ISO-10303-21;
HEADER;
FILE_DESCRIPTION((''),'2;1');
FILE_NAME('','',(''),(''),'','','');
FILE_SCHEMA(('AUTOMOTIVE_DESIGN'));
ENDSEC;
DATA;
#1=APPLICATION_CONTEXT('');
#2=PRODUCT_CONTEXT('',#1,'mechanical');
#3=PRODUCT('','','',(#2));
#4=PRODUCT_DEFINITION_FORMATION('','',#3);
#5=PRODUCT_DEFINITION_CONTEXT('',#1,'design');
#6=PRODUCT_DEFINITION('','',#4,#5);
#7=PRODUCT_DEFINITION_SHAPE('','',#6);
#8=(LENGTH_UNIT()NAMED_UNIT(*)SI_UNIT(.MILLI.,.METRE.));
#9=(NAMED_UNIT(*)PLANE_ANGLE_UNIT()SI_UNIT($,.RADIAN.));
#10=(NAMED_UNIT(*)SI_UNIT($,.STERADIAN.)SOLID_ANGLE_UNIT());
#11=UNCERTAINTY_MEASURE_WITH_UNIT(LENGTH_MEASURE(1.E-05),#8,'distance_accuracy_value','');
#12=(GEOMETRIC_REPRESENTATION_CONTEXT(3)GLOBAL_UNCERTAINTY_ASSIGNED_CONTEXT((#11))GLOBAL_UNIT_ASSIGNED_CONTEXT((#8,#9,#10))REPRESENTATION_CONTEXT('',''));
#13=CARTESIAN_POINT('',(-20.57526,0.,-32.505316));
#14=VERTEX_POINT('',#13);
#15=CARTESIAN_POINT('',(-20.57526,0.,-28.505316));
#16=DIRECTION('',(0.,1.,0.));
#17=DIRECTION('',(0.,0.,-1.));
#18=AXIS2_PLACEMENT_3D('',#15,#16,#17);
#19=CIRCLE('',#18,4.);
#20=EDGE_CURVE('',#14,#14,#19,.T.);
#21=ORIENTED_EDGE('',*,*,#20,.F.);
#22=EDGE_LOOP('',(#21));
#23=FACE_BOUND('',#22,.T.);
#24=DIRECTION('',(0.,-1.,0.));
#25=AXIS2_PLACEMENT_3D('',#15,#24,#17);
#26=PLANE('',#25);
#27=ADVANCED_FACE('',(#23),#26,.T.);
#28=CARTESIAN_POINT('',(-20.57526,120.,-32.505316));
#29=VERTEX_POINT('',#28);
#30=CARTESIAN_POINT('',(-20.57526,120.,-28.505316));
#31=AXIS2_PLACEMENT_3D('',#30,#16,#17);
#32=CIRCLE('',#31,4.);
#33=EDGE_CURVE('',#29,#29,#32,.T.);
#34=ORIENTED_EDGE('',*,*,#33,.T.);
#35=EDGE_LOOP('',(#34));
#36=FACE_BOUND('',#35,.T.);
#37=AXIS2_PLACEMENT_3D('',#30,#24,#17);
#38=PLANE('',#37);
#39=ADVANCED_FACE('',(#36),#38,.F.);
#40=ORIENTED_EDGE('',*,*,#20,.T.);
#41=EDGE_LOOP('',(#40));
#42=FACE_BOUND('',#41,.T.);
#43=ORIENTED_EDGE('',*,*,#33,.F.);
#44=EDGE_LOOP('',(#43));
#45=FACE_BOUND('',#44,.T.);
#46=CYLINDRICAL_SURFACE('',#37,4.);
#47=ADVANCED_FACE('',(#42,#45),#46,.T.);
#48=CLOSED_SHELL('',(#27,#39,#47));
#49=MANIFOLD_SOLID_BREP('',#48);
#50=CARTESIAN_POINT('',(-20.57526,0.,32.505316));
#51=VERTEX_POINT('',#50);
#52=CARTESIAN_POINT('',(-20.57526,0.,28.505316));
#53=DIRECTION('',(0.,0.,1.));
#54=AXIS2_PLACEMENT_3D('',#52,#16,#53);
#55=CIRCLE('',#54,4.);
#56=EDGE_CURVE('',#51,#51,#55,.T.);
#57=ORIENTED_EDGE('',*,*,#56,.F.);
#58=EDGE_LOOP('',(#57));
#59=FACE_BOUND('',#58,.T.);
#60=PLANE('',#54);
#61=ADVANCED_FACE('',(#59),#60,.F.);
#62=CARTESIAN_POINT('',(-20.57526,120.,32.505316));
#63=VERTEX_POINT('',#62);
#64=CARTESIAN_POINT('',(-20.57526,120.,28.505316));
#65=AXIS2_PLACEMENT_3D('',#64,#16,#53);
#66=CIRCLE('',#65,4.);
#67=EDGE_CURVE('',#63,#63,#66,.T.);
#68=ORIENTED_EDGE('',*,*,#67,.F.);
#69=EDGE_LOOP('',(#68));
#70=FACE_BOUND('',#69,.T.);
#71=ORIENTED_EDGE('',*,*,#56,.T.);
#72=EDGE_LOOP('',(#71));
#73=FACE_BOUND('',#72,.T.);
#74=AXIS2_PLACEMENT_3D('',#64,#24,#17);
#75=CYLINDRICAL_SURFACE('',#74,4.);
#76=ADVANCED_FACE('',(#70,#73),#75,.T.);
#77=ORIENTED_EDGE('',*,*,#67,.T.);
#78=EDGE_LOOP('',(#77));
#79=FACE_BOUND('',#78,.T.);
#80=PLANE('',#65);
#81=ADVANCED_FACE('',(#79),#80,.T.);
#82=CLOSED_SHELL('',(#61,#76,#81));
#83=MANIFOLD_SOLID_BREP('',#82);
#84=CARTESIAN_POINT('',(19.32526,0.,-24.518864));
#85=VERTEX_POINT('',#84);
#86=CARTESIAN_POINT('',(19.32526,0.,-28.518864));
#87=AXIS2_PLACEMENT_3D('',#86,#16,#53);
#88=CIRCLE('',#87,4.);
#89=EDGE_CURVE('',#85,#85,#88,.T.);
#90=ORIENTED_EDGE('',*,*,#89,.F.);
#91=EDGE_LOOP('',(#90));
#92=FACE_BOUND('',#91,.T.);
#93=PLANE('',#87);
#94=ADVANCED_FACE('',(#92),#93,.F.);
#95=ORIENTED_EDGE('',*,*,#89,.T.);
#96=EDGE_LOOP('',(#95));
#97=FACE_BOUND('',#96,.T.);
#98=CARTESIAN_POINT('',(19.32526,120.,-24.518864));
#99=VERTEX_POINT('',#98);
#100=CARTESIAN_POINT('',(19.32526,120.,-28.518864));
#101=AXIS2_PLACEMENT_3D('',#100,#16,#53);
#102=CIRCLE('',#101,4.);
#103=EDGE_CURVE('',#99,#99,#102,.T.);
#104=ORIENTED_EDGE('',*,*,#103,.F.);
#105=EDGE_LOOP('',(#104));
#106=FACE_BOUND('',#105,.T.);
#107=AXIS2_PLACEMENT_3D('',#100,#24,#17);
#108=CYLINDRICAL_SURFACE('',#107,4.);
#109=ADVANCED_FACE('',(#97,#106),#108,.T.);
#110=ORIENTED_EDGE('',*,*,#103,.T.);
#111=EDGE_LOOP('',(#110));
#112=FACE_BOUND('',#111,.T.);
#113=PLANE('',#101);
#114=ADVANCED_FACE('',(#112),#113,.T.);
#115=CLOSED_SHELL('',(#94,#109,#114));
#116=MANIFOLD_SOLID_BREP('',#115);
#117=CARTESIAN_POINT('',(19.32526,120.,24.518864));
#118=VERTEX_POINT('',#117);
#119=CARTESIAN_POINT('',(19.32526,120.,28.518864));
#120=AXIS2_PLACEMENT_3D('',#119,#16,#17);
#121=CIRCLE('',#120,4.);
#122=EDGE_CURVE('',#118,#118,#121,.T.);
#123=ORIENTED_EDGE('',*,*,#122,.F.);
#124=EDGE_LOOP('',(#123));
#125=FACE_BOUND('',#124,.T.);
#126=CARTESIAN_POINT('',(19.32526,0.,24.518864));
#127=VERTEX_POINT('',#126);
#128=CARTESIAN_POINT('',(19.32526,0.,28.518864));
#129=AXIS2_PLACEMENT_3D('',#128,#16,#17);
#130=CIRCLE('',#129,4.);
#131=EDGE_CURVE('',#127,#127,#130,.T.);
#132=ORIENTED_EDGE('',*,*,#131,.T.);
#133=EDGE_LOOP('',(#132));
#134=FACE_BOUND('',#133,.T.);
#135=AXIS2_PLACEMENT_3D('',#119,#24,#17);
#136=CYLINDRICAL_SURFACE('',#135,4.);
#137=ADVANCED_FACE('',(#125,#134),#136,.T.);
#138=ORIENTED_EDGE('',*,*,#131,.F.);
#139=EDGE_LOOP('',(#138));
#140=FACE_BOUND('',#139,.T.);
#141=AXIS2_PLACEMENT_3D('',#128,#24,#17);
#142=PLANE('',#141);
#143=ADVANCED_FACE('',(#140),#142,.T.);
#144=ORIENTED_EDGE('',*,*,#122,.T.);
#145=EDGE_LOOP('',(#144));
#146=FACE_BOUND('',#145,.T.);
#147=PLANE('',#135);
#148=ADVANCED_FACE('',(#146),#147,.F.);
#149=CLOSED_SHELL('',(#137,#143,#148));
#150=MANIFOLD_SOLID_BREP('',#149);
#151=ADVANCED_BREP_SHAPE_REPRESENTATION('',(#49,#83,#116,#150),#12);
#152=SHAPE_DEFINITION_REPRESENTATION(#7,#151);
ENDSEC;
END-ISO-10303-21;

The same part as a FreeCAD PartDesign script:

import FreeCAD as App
import Part
import Sketcher

V = App.Vector
Q = App.Units.Quantity

doc = App.newDocument("Part")
body = doc.addObject("PartDesign::Body", "Body")

# Sketch on XZ plane
sketch1 = doc.addObject("Sketcher::SketchObject", "Sketch")
body.addObject(sketch1)
sketch1.AttachmentSupport = (doc.XZ_Plane, [""])
sketch1.MapMode = "FlatFace"
sketch1.addGeometry(Part.Circle(V(19.3, -28.5, 0), V(0, 0, 1), 4), False)
sketch1.addConstraint([
    Sketcher.Constraint("Diameter", 0, Q("8 mm")),
    Sketcher.Constraint("DistanceX", -1, 1, 0, 3, Q("19.32526 mm")),
    Sketcher.Constraint("DistanceY", 0, 3, -1, 1, Q("28.518864 mm")),
])
pad1 = doc.addObject("PartDesign::Pad", "Pad")
body.addObject(pad1)
pad1.Profile = sketch1
pad1.Length = 120
pad1.Reversed = True
body2 = doc.addObject("PartDesign::Body", "Body001")

# Sketch on XZ plane
sketch2 = doc.addObject("Sketcher::SketchObject", "Sketch001")
body2.addObject(sketch2)
sketch2.AttachmentSupport = (doc.getObject("XZ_Plane001"), [""])
sketch2.MapMode = "FlatFace"
sketch2.addGeometry(Part.Circle(V(-20.6, -28.5, 0), V(0, 0, 1), 4), False)
sketch2.addConstraint([
    Sketcher.Constraint("Diameter", 0, Q("8 mm")),
    Sketcher.Constraint("DistanceX", 0, 3, -1, 1, Q("20.57526 mm")),
    Sketcher.Constraint("DistanceY", 0, 3, -1, 1, Q("28.505316 mm")),
])
pad2 = doc.addObject("PartDesign::Pad", "Pad001")
body2.addObject(pad2)
pad2.Profile = sketch2
pad2.Length = 120
pad2.Reversed = True
body3 = doc.addObject("PartDesign::Body", "Body002")

# Sketch on XZ plane
sketch3 = doc.addObject("Sketcher::SketchObject", "Sketch002")
body3.addObject(sketch3)
sketch3.AttachmentSupport = (doc.getObject("XZ_Plane002"), [""])
sketch3.MapMode = "FlatFace"
sketch3.addGeometry(Part.Circle(V(19.3, 28.5, 0), V(0, 0, 1), 4), False)
sketch3.addConstraint([
    Sketcher.Constraint("Diameter", 0, Q("8 mm")),
    Sketcher.Constraint("DistanceX", -1, 1, 0, 3, Q("19.32526 mm")),
    Sketcher.Constraint("DistanceY", -1, 1, 0, 3, Q("28.518864 mm")),
])
pad3 = doc.addObject("PartDesign::Pad", "Pad002")
body3.addObject(pad3)
pad3.Profile = sketch3
pad3.Length = 120
pad3.Reversed = True
body4 = doc.addObject("PartDesign::Body", "Body003")

# Sketch on XZ plane
sketch4 = doc.addObject("Sketcher::SketchObject", "Sketch003")
body4.addObject(sketch4)
sketch4.AttachmentSupport = (doc.getObject("XZ_Plane003"), [""])
sketch4.MapMode = "FlatFace"
sketch4.addGeometry(Part.Circle(V(-20.6, 28.5, 0), V(0, 0, 1), 4), False)
sketch4.addConstraint([
    Sketcher.Constraint("Diameter", 0, Q("8 mm")),
    Sketcher.Constraint("DistanceX", 0, 3, -1, 1, Q("20.57526 mm")),
    Sketcher.Constraint("DistanceY", -1, 1, 0, 3, Q("28.505316 mm")),
])
pad4 = doc.addObject("PartDesign::Pad", "Pad003")
body4.addObject(pad4)
pad4.Profile = sketch4
pad4.Length = 120
pad4.Reversed = True

doc.recompute()
